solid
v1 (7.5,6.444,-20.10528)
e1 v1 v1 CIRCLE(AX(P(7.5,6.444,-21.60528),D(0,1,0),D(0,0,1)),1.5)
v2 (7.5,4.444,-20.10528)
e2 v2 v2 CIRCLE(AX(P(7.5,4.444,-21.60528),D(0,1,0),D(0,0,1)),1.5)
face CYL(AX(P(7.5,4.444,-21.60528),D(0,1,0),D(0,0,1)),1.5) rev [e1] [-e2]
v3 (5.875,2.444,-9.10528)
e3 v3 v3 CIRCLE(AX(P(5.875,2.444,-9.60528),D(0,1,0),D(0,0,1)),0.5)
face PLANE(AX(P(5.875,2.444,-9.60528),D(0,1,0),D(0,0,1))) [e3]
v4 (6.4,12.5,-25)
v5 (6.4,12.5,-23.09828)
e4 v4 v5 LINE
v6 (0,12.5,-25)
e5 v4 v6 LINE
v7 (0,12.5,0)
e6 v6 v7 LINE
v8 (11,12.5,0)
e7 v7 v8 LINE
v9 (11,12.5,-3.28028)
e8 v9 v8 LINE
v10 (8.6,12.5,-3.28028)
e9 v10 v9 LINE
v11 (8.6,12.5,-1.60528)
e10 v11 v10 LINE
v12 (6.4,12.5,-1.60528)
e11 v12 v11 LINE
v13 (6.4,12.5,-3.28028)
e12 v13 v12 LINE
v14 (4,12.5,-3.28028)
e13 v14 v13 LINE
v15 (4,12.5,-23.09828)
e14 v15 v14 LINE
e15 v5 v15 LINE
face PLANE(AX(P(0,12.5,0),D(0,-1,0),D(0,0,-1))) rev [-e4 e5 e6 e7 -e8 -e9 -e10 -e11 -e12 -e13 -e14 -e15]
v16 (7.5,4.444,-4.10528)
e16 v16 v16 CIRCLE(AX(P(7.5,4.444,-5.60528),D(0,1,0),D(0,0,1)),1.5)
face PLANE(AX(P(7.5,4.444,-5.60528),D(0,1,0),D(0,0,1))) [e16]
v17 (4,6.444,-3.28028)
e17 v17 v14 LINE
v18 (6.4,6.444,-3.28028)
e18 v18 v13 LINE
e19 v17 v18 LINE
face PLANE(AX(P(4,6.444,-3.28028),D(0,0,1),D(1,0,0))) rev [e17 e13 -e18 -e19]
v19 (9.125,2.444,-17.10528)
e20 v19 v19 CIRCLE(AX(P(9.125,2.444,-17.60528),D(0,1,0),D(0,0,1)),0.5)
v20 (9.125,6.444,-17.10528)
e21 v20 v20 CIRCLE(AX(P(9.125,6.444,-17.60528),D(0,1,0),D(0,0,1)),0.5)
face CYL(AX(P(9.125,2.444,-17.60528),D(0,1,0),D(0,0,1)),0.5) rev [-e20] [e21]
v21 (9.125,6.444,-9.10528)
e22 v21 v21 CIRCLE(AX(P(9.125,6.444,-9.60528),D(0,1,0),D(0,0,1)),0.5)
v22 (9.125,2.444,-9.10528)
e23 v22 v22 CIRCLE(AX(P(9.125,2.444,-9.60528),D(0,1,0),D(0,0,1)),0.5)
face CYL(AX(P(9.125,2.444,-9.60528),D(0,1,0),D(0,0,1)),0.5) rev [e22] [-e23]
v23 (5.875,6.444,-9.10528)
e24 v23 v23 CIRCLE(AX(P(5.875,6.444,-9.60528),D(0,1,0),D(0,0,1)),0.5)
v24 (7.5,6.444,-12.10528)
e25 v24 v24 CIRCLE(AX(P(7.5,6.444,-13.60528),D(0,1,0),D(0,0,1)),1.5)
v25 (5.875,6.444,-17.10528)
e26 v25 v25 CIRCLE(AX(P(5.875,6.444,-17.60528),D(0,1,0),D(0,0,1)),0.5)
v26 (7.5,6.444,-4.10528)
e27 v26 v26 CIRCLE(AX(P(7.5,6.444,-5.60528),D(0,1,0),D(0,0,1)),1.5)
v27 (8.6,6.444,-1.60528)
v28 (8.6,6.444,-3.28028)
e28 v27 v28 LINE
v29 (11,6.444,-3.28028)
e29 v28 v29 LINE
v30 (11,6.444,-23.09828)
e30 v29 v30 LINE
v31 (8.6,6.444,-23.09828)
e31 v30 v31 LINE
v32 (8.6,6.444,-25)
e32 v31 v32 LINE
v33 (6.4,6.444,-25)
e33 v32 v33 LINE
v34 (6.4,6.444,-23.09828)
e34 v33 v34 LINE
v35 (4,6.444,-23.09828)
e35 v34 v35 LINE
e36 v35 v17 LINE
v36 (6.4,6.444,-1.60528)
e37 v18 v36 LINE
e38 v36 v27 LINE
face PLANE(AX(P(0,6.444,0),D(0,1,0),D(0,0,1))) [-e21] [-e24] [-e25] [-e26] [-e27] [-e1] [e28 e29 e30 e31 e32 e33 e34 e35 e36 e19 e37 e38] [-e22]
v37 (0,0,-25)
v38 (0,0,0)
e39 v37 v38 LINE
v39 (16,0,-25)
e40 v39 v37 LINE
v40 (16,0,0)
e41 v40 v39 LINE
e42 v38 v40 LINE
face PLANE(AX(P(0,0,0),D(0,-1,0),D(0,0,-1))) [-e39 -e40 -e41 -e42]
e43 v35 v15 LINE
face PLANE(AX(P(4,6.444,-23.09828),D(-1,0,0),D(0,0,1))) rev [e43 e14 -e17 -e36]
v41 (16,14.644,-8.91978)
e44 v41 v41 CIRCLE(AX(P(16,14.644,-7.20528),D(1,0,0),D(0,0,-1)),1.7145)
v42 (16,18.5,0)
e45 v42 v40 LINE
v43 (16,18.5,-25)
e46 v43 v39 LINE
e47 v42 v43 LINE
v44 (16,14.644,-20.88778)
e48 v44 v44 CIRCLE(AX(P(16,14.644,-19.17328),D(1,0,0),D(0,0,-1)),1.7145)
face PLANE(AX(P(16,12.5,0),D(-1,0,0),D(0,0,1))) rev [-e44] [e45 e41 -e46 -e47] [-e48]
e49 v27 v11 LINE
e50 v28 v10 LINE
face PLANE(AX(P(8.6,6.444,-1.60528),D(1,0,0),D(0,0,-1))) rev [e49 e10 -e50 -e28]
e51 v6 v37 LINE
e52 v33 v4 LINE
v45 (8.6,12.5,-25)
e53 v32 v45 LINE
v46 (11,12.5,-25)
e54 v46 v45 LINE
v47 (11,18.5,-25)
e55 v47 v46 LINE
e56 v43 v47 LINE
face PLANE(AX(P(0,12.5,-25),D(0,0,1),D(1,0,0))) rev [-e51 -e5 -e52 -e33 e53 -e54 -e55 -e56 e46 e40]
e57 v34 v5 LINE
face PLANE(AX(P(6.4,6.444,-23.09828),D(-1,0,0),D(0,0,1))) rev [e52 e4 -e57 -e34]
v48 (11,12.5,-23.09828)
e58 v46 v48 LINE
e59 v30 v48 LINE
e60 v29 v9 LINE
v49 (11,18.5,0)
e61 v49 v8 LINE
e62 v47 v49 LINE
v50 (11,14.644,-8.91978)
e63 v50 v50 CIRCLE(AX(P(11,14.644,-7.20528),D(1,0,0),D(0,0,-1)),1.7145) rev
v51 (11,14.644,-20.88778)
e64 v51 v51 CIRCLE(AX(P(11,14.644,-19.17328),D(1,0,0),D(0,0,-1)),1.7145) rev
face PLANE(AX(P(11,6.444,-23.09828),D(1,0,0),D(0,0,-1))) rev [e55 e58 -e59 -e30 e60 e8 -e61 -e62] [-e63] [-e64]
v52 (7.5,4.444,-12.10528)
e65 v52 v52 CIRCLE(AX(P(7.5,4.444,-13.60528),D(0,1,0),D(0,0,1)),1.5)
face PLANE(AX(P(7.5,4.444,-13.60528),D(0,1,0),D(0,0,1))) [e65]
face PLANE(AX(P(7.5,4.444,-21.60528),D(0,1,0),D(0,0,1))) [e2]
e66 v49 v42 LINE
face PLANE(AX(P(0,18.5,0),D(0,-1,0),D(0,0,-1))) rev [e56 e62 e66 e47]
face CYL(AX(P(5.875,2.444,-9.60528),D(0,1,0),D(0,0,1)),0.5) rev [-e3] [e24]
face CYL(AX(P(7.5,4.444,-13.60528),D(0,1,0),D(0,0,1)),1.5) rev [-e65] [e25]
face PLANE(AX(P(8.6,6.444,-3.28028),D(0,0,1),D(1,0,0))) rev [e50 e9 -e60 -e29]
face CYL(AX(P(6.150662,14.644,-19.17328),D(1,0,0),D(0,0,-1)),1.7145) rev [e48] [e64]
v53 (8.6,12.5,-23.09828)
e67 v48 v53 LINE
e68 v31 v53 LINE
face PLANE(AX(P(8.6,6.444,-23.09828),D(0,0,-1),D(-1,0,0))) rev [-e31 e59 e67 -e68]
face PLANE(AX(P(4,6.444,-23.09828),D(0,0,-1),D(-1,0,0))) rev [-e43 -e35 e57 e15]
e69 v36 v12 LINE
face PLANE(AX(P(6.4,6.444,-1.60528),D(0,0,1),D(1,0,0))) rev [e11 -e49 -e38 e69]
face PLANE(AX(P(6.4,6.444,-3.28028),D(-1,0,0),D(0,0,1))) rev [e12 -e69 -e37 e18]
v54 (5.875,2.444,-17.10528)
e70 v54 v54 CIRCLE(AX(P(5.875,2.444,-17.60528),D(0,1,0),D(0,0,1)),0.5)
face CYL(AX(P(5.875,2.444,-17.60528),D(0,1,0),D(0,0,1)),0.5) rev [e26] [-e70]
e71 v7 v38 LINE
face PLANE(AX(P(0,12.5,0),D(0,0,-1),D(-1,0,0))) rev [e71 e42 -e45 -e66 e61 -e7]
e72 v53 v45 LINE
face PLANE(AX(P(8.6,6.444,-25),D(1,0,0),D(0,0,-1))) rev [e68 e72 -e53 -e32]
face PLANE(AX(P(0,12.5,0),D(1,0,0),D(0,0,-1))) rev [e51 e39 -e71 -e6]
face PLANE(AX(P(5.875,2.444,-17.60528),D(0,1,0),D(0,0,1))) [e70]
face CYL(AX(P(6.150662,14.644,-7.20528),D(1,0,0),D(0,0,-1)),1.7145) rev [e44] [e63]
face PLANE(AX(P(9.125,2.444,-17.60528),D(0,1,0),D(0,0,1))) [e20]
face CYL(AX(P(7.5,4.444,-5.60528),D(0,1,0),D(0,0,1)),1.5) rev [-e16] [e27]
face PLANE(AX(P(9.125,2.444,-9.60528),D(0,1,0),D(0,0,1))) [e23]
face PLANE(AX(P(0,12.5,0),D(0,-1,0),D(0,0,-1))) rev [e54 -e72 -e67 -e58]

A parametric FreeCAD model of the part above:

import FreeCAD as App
import Part
import Sketcher

V = App.Vector
Q = App.Units.Quantity


def add_polygon(sketch, points):
    """Adds a closed chain of lines whose ends are joined by coincident constraints."""
    first, n = sketch.GeometryCount, len(points)
    for a, b in zip(points, points[1:] + points[:1]):
        sketch.addGeometry(Part.LineSegment(App.Vector(*a, 0), App.Vector(*b, 0)), False)
    for i in range(n):
        sketch.addConstraint(Sketcher.Constraint("Coincident", first + i, 2, first + (i + 1) % n, 1))

doc = App.newDocument("Part")
params = doc.addObject("Spreadsheet::Sheet", "Params")
for row, (alias, value) in enumerate([
    ("sketch1_width", "16 mm"),
    ("sketch1_height", "25 mm"),
    ("pad1_length", "12.5 mm"),
    ("sketch2_width", "2.4 mm"),
    ("sketch2_width2", "2.2 mm"),
    ("pocket1_length", "6.056 mm"),
    ("sketch3_width", "5 mm"),
    ("sketch3_height", "25 mm"),
    ("pad2_length", "6 mm"),
    ("pocket2_length", "5 mm"),
    ("sketch5_diameter", "1 mm"),
    ("pocket3_length", "4 mm"),
    ("sketch6_diameter", "3 mm"),
    ("pocket4_length", "2 mm"),
], start=1):
    params.set(f"A{row}", alias)
    params.set(f"B{row}", "=" + value)
    params.setAlias(f"B{row}", alias)

body = doc.addObject("PartDesign::Body", "Body")

sketch1 = body.newObject("Sketcher::SketchObject", "Sketch")
sketch1.AttachmentSupport = (doc.getObject("XZ_Plane"), [""])
sketch1.MapMode = "FlatFace"
add_polygon(sketch1, [(0, -25), (0, 0), (16, 0), (16, -25)])
sketch1.addConstraint([
    Sketcher.Constraint("Vertical", 0),
    Sketcher.Constraint("Horizontal", 1),
    Sketcher.Constraint("Vertical", 2),
    Sketcher.Constraint("Horizontal", 3),
    Sketcher.Constraint("Coincident", 0, 2, -1, 1),
    Sketcher.Constraint("DistanceX", 1, 1, 1, 2, Q("16 mm")),
    Sketcher.Constraint("DistanceY", 0, 1, 0, 2, Q("25 mm")),
])
sketch1.setExpression("Constraints[9]", "Params.sketch1_width")
sketch1.setExpression("Constraints[10]", "Params.sketch1_height")
pad1 = body.newObject("PartDesign::Pad", "Pad")
pad1.Profile = sketch1
pad1.setExpression("Length", "Params.pad1_length")
pad1.Reversed = True

sketch2 = body.newObject("Sketcher::SketchObject", "Sketch001")
sketch2.AttachmentSupport = (doc.getObject("XZ_Plane"), [""])
sketch2.MapMode = "FlatFace"
sketch2.AttachmentOffset = App.Placement(V(0, 0, -12.5), App.Rotation())
add_polygon(sketch2, [(6.4, -23.09828), (4, -23.09828), (4, -3.28028), (6.4, -3.28028), (6.4, -1.60528), (8.6, -1.60528), (8.6, -3.28028), (11, -3.28028), (11, -23.09828), (8.6, -23.09828), (8.6, -25), (6.4, -25)])
sketch2.addConstraint([
    Sketcher.Constraint("Horizontal", 0),
    Sketcher.Constraint("Vertical", 1),
    Sketcher.Constraint("Horizontal", 2),
    Sketcher.Constraint("Vertical", 3),
    Sketcher.Constraint("Horizontal", 4),
    Sketcher.Constraint("Vertical", 5),
    Sketcher.Constraint("Horizontal", 6),
    Sketcher.Constraint("Vertical", 7),
    Sketcher.Constraint("Horizontal", 8),
    Sketcher.Constraint("Vertical", 9),
    Sketcher.Constraint("Horizontal", 10),
    Sketcher.Constraint("Vertical", 11),
    Sketcher.Constraint("Horizontal", 2, 2, 5, 2),
    Sketcher.Constraint("Horizontal", 0, 2, 7, 2),
    Sketcher.Constraint("Vertical", 5, 2, 8, 2),
    Sketcher.Constraint("Vertical", 3, 2, 10, 2),
    Sketcher.Constraint("Equal", 2, 6),
    Sketcher.Constraint("DistanceX", 0, 2, 0, 1, Q("2.4 mm")),
    Sketcher.Constraint("DistanceX", 4, 1, 4, 2, Q("2.2 mm")),
    Sketcher.Constraint("DistanceX", -1, 1, 0, 2, Q("4 mm")),
    Sketcher.Constraint("DistanceY", 9, 2, -1, 1, Q("25 mm")),
    Sketcher.Constraint("DistanceY", 1, 1, 1, 2, Q("19.818 mm")),
    Sketcher.Constraint("DistanceY", 3, 1, 3, 2, Q("1.675 mm")),
    Sketcher.Constraint("DistanceY", 9, 2, 9, 1, Q("1.90172 mm")),
])
sketch2.setExpression("Constraints[29]", "Params.sketch2_width")
sketch2.setExpression("Constraints[30]", "Params.sketch2_width2")
pocket1 = body.newObject("PartDesign::Pocket", "Pocket")
pocket1.Profile = sketch2
pocket1.setExpression("Length", "Params.pocket1_length")
pocket1.Reversed = True

sketch3 = body.newObject("Sketcher::SketchObject", "Sketch002")
sketch3.AttachmentSupport = (doc.getObject("XZ_Plane"), [""])
sketch3.MapMode = "FlatFace"
sketch3.AttachmentOffset = App.Placement(V(0, 0, -12.5), App.Rotation())
add_polygon(sketch3, [(11, -25), (11, 0), (16, 0), (16, -25)])
sketch3.addConstraint([
    Sketcher.Constraint("Vertical", 0),
    Sketcher.Constraint("Horizontal", 1),
    Sketcher.Constraint("Vertical", 2),
    Sketcher.Constraint("Horizontal", 3),
    Sketcher.Constraint("PointOnObject", 0, 2, -1),
    Sketcher.Constraint("DistanceX", 1, 1, 1, 2, Q("5 mm")),
    Sketcher.Constraint("DistanceY", 0, 1, 0, 2, Q("25 mm")),
    Sketcher.Constraint("DistanceX", -1, 1, 0, 2, Q("11 mm")),
])
sketch3.setExpression("Constraints[9]", "Params.sketch3_width")
sketch3.setExpression("Constraints[10]", "Params.sketch3_height")
pad2 = body.newObject("PartDesign::Pad", "Pad001")
pad2.Profile = sketch3
pad2.setExpression("Length", "Params.pad2_length")
pad2.Reversed = True

sketch4 = body.newObject("Sketcher::SketchObject", "Sketch003")
sketch4.AttachmentSupport = (doc.getObject("YZ_Plane"), [""])
sketch4.MapMode = "FlatFace"
sketch4.AttachmentOffset = App.Placement(V(0, 0, 16), App.Rotation())
sketch4.addGeometry([
    Part.Circle(V(14.644, -7.20528, 0), V(0, 0, 1), 1.7145),
    Part.Circle(V(14.644, -19.17328, 0), V(0, 0, 1), 1.7145),
], False)
sketch4.addConstraint([
    Sketcher.Constraint("Equal", 0, 1),
    Sketcher.Constraint("Vertical", 0, 3, 1, 3),
    Sketcher.Constraint("Diameter", 0, Q("3.429 mm")),
    Sketcher.Constraint("DistanceX", -1, 1, 0, 3, Q("14.644 mm")),
    Sketcher.Constraint("DistanceY", 1, 3, 0, 3, Q("11.968 mm")),
    Sketcher.Constraint("DistanceY", 0, 3, -1, 1, Q("7.20528 mm")),
])
pocket2 = body.newObject("PartDesign::Pocket", "Pocket001")
pocket2.Profile = sketch4
pocket2.setExpression("Length", "Params.pocket2_length")

sketch5 = body.newObject("Sketcher::SketchObject", "Sketch004")
sketch5.AttachmentSupport = (doc.getObject("XZ_Plane"), [""])
sketch5.MapMode = "FlatFace"
sketch5.AttachmentOffset = App.Placement(V(0, 0, -6.444), App.Rotation())
sketch5.addGeometry([
    Part.Circle(V(5.875, -9.60528, 0), V(0, 0, 1), 0.5),
    Part.Circle(V(9.125, -9.60528, 0), V(0, 0, 1), 0.5),
    Part.Circle(V(5.875, -17.60528, 0), V(0, 0, 1), 0.5),
    Part.Circle(V(9.125, -17.60528, 0), V(0, 0, 1), 0.5),
], False)
sketch5.addConstraint([
    Sketcher.Constraint("Equal", 0, 1),
    Sketcher.Constraint("Equal", 1, 2),
    Sketcher.Constraint("Equal", 2, 3),
    Sketcher.Constraint("Horizontal", 0, 3, 1, 3),
    Sketcher.Constraint("Horizontal", 2, 3, 3, 3),
    Sketcher.Constraint("Vertical", 0, 3, 2, 3),
    Sketcher.Constraint("Vertical", 1, 3, 3, 3),
    Sketcher.Constraint("Diameter", 0, Q("1 mm")),
    Sketcher.Constraint("DistanceY", 2, 3, 0, 3, Q("8 mm")),
    Sketcher.Constraint("DistanceX", 0, 3, 1, 3, Q("3.25 mm")),
    Sketcher.Constraint("DistanceX", -1, 1, 0, 3, Q("5.875 mm")),
    Sketcher.Constraint("DistanceY", 0, 3, -1, 1, Q("9.60528 mm")),
])
sketch5.setExpression("Constraints[7]", "Params.sketch5_diameter")
pocket3 = body.newObject("PartDesign::Pocket", "Pocket002")
pocket3.Profile = sketch5
pocket3.setExpression("Length", "Params.pocket3_length")
pocket3.Reversed = True

sketch6 = body.newObject("Sketcher::SketchObject", "Sketch005")
sketch6.AttachmentSupport = (doc.getObject("XZ_Plane"), [""])
sketch6.MapMode = "FlatFace"
sketch6.AttachmentOffset = App.Placement(V(0, 0, -6.444), App.Rotation())
sketch6.addGeometry([
    Part.Circle(V(7.5, -21.60528, 0), V(0, 0, 1), 1.5),
    Part.Circle(V(7.5, -13.60528, 0), V(0, 0, 1), 1.5),
    Part.Circle(V(7.5, -5.60528, 0), V(0, 0, 1), 1.5),
], False)
sketch6.addConstraint([
    Sketcher.Constraint("Equal", 0, 1),
    Sketcher.Constraint("Equal", 1, 2),
    Sketcher.Constraint("Vertical", 0, 3, 1, 3),
    Sketcher.Constraint("Vertical", 1, 3, 2, 3),
    Sketcher.Constraint("Diameter", 0, Q("3 mm")),
    Sketcher.Constraint("DistanceY", 0, 3, 1, 3, Q("8 mm")),
    Sketcher.Constraint("DistanceY", 1, 3, 2, 3, Q("8 mm")),
    Sketcher.Constraint("DistanceX", -1, 1, 0, 3, Q("7.5 mm")),
    Sketcher.Constraint("DistanceY", 0, 3, -1, 1, Q("21.60528 mm")),
])
sketch6.setExpression("Constraints[4]", "Params.sketch6_diameter")
pocket4 = body.newObject("PartDesign::Pocket", "Pocket003")
pocket4.Profile = sketch6
pocket4.setExpression("Length", "Params.pocket4_length")
pocket4.Reversed = True

doc.recompute()
